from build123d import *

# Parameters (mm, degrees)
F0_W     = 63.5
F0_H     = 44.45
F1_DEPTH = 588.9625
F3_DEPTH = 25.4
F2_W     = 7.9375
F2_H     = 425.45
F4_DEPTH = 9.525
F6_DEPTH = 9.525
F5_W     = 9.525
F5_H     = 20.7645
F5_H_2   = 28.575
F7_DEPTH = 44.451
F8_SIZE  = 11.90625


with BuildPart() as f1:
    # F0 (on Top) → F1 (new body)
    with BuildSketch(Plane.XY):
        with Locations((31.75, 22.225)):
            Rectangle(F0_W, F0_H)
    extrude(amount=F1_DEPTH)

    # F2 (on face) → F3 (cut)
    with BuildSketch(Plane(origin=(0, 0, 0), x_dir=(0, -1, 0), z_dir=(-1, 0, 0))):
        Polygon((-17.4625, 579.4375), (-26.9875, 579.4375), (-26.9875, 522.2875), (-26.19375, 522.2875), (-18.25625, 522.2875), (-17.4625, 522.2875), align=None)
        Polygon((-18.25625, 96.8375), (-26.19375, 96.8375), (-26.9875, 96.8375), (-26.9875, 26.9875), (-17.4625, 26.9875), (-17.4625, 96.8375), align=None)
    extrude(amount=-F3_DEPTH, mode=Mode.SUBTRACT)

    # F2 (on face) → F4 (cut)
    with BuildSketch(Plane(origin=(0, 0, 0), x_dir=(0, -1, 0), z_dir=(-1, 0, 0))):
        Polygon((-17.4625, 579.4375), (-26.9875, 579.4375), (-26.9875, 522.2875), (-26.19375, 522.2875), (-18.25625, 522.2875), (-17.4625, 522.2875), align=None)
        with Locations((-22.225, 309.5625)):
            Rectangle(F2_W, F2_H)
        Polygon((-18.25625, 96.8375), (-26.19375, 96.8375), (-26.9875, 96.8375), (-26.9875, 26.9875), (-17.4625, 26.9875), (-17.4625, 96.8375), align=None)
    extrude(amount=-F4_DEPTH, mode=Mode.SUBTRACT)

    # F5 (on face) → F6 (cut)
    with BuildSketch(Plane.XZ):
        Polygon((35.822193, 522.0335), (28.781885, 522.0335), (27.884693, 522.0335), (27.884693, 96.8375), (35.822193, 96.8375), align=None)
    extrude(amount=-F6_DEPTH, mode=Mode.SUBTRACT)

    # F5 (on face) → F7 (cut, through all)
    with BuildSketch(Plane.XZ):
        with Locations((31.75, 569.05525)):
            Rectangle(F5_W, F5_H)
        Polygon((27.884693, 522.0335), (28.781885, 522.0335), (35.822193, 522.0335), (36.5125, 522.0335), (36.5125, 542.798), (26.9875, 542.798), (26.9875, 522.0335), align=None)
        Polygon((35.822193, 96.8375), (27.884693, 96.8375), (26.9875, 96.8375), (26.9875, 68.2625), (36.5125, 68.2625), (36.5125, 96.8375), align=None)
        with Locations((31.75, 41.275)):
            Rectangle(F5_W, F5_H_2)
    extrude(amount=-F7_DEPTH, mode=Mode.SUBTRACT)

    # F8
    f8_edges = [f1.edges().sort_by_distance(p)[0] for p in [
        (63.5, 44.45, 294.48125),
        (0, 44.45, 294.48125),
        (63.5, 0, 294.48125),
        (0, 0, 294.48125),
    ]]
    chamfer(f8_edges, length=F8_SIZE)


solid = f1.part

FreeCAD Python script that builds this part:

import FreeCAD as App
import Part
import Sketcher
from FreeCAD import Vector
Q = App.Units.Quantity


def edges_at(feature, points):
    """Names of the edges that pass closest to the given points."""
    edges = feature.Shape.Edges
    near = lambda p: min(range(len(edges)), key=lambda i: edges[i].distToShape(Part.Vertex(*p))[0])
    return sorted({f"Edge{near(p) + 1}" for p in points})


def add_polygon(sketch, points):
    """Adds a closed chain of lines whose ends are joined by coincident constraints."""
    first, n = sketch.GeometryCount, len(points)
    for a, b in zip(points, points[1:] + points[:1]):
        sketch.addGeometry(Part.LineSegment(App.Vector(*a, 0), App.Vector(*b, 0)), False)
    for i in range(n):
        sketch.addConstraint(Sketcher.Constraint("Coincident", first + i, 2, first + (i + 1) % n, 1))

doc = App.newDocument("Part")
params = doc.addObject("Spreadsheet::Sheet", "Params")
for row, (alias, value) in enumerate([
    ("sketch1_width", "2.5 in"),
    ("sketch1_height", "1.75 in"),
    ("pad1_length", "23.1875 in"),
    ("sketch2_height", "2.25 in"),
    ("sketch2_height2", "2.75 in"),
    ("sketch2_width", "0.375 in"),
    ("pocket1_length", "1 in"),
    ("sketch3_height", "2.25 in"),
    ("sketch3_height2", "2.75 in"),
    ("sketch3_width", "0.375 in"),
    ("sketch3_width2", "0.03125 in"),
    ("pocket2_length", "0.375 in"),
    ("sketch4_height", "16.74 in"),
    ("sketch4_width", "0.3125 in"),
    ("pocket3_length", "0.375 in"),
    ("sketch5_width", "0.375 in"),
    ("sketch5_height", "1.125 in"),
    ("chamfer_size", "0.46875 in"),
], start=1):
    params.set(f"A{row}", alias)
    params.set(f"B{row}", "=" + value)
    params.setAlias(f"B{row}", alias)

body = doc.addObject("PartDesign::Body", "Body")

sketch1 = doc.addObject("Sketcher::SketchObject", "Sketch")
body.addObject(sketch1)
sketch1.AttachmentSupport = (doc.XY_Plane, [""])
sketch1.MapMode = "FlatFace"
add_polygon(sketch1, [(0, 44), (0, 0), (64, 0), (64, 44)])
sketch1.addConstraint([
    Sketcher.Constraint("Vertical", 0),
    Sketcher.Constraint("Horizontal", 1),
    Sketcher.Constraint("Vertical", 2),
    Sketcher.Constraint("Horizontal", 3),
    Sketcher.Constraint("Coincident", 0, 2, -1, 1),
    Sketcher.Constraint("DistanceX", 1, 1, 1, 2, Q("2.5 in")),
    Sketcher.Constraint("DistanceY", 0, 2, 0, 1, Q("1.75 in")),
])
sketch1.setExpression("Constraints[9]", "Params.sketch1_width")
sketch1.setExpression("Constraints[10]", "Params.sketch1_height")
pad1 = doc.addObject("PartDesign::Pad", "Pad")
body.addObject(pad1)
pad1.Profile = sketch1
pad1.setExpression("Length", "Params.pad1_length")

sketch2 = doc.addObject("Sketcher::SketchObject", "Sketch001")
body.addObject(sketch2)
sketch2.AttachmentSupport = (doc.YZ_Plane, [""])
sketch2.MapMode = "FlatFace"
add_polygon(sketch2, [(17, 579), (27, 579), (27, 522), (17, 522)])
add_polygon(sketch2, [(27, 97), (27, 27), (17, 27), (17, 97)])
sketch2.addConstraint([
    Sketcher.Constraint("Horizontal", 0),
    Sketcher.Constraint("Vertical", 1),
    Sketcher.Constraint("Horizontal", 2),
    Sketcher.Constraint("Vertical", 3),
    Sketcher.Constraint("Vertical", 4),
    Sketcher.Constraint("Horizontal", 5),
    Sketcher.Constraint("Vertical", 6),
    Sketcher.Constraint("Horizontal", 7),
    Sketcher.Constraint("Vertical", 1, 2, 4, 2),
    Sketcher.Constraint("Vertical", 3, 2, 5, 2),
    Sketcher.Constraint("DistanceY", 6, 2, 3, 2, Q("19 in")),
    Sketcher.Constraint("DistanceY", 1, 2, 1, 1, Q("2.25 in")),
    Sketcher.Constraint("DistanceY", 4, 2, 4, 1, Q("2.75 in")),
    Sketcher.Constraint("DistanceX", 0, 1, 0, 2, Q("0.375 in")),
    Sketcher.Constraint("DistanceX", -1, 1, 0, 2, Q("1.0625 in")),
    Sketcher.Constraint("DistanceY", -1, 1, 0, 2, Q("22.8125 in")),
])
sketch2.setExpression("Constraints[19]", "Params.sketch2_height")
sketch2.setExpression("Constraints[20]", "Params.sketch2_height2")
sketch2.setExpression("Constraints[21]", "Params.sketch2_width")
pocket1 = doc.addObject("PartDesign::Pocket", "Pocket")
body.addObject(pocket1)
pocket1.Profile = sketch2
pocket1.setExpression("Length", "Params.pocket1_length")
pocket1.Reversed = True

sketch3 = doc.addObject("Sketcher::SketchObject", "Sketch002")
body.addObject(sketch3)
sketch3.AttachmentSupport = (doc.YZ_Plane, [""])
sketch3.MapMode = "FlatFace"
add_polygon(sketch3, [(17.5, 579.4), (27, 579.4), (27, 522.3), (26.2, 522.3), (26.2, 96.8), (27, 96.8), (27, 27), (17.5, 27), (17.5, 96.8), (18.3, 96.8), (18.3, 522.3), (17.5, 522.3)])
sketch3.addConstraint([
    Sketcher.Constraint("Horizontal", 0),
    Sketcher.Constraint("Vertical", 1),
    Sketcher.Constraint("Horizontal", 2),
    Sketcher.Constraint("Vertical", 3),
    Sketcher.Constraint("Horizontal", 4),
    Sketcher.Constraint("Vertical", 5),
    Sketcher.Constraint("Horizontal", 6),
    Sketcher.Constraint("Vertical", 7),
    Sketcher.Constraint("Horizontal", 8),
    Sketcher.Constraint("Vertical", 9),
    Sketcher.Constraint("Horizontal", 10),
    Sketcher.Constraint("Vertical", 11),
    Sketcher.Constraint("Horizontal", 4, 2, 7, 2),
    Sketcher.Constraint("Horizontal", 2, 2, 9, 2),
    Sketcher.Constraint("Vertical", 1, 2, 4, 2),
    Sketcher.Constraint("Vertical", 7, 2, 10, 2),
    Sketcher.Constraint("Equal", 4, 8),
    Sketcher.Constraint("DistanceY", 3, 2, 0, 2, Q("19 in")),
    Sketcher.Constraint("DistanceY", 1, 2, 1, 1, Q("2.25 in")),
    Sketcher.Constraint("DistanceY", 5, 2, 5, 1, Q("2.75 in")),
    Sketcher.Constraint("DistanceX", 0, 1, 0, 2, Q("0.375 in")),
    Sketcher.Constraint("DistanceX", 2, 2, 2, 1, Q("0.03125 in")),
    Sketcher.Constraint("DistanceX", -1, 1, 0, 2, Q("1.0625 in")),
    Sketcher.Constraint("DistanceY", -1, 1, 0, 2, Q("22.8125 in")),
])
sketch3.setExpression("Constraints[30]", "Params.sketch3_height")
sketch3.setExpression("Constraints[31]", "Params.sketch3_height2")
sketch3.setExpression("Constraints[32]", "Params.sketch3_width")
sketch3.setExpression("Constraints[33]", "Params.sketch3_width2")
pocket2 = doc.addObject("PartDesign::Pocket", "Pocket001")
body.addObject(pocket2)
pocket2.Profile = sketch3
pocket2.setExpression("Length", "Params.pocket2_length")
pocket2.Reversed = True

sketch4 = doc.addObject("Sketcher::SketchObject", "Sketch003")
body.addObject(sketch4)
sketch4.AttachmentSupport = (doc.XZ_Plane, [""])
sketch4.MapMode = "FlatFace"
add_polygon(sketch4, [(36, 522), (28, 522), (28, 97), (36, 97)])
sketch4.addConstraint([
    Sketcher.Constraint("Horizontal", 0),
    Sketcher.Constraint("Vertical", 1),
    Sketcher.Constraint("Horizontal", 2),
    Sketcher.Constraint("Vertical", 3),
    Sketcher.Constraint("DistanceY", 1, 2, 1, 1, Q("16.74 in")),
    Sketcher.Constraint("DistanceX", 0, 2, 0, 1, Q("0.3125 in")),
    Sketcher.Constraint("DistanceY", -1, 1, 1, 2, Q("3.8125 in")),
    Sketcher.Constraint("DistanceX", -1, 1, 0, 2, 27.884693),
])
sketch4.setExpression("Constraints[8]", "Params.sketch4_height")
sketch4.setExpression("Constraints[9]", "Params.sketch4_width")
pocket3 = doc.addObject("PartDesign::Pocket", "Pocket002")
body.addObject(pocket3)
pocket3.Profile = sketch4
pocket3.setExpression("Length", "Params.pocket3_length")

sketch5 = doc.addObject("Sketcher::SketchObject", "Sketch004")
body.addObject(sketch5)
sketch5.AttachmentSupport = (doc.XZ_Plane, [""])
sketch5.MapMode = "FlatFace"
add_polygon(sketch5, [(27, 579), (27, 559), (37, 559), (37, 579)])
add_polygon(sketch5, [(37, 522), (37, 543), (27, 543), (27, 522)])
add_polygon(sketch5, [(27, 97), (27, 68), (37, 68), (37, 97)])
add_polygon(sketch5, [(27, 56), (27, 27), (37, 27), (37, 56)])
sketch5.addConstraint([
    Sketcher.Constraint("Vertical", 0),
    Sketcher.Constraint("Horizontal", 1),
    Sketcher.Constraint("Vertical", 2),
    Sketcher.Constraint("Horizontal", 3),
    Sketcher.Constraint("Vertical", 4),
    Sketcher.Constraint("Horizontal", 5),
    Sketcher.Constraint("Vertical", 6),
    Sketcher.Constraint("Horizontal", 7),
    Sketcher.Constraint("Vertical", 8),
    Sketcher.Constraint("Horizontal", 9),
    Sketcher.Constraint("Vertical", 10),
    Sketcher.Constraint("Horizontal", 11),
    Sketcher.Constraint("Vertical", 12),
    Sketcher.Constraint("Horizontal", 13),
    Sketcher.Constraint("Vertical", 14),
    Sketcher.Constraint("Horizontal", 15),
    Sketcher.Constraint("Vertical", 2, 2, 4, 2),
    Sketcher.Constraint("Vertical", 3, 2, 5, 2),
    Sketcher.Constraint("Vertical", 6, 2, 8, 2),
    Sketcher.Constraint("Vertical", 7, 2, 9, 2),
    Sketcher.Constraint("Vertical", 11, 2, 12, 2),
    Sketcher.Constraint("Vertical", 10, 2, 13, 2),
    Sketcher.Constraint("Equal", 2, 4),
    Sketcher.Constraint("Equal", 10, 12),
    Sketcher.Constraint("DistanceY", 14, 2, 9, 2, Q("0.5 in")),
    Sketcher.Constraint("DistanceX", 1, 1, 1, 2, Q("0.375 in")),
    Sketcher.Constraint("DistanceY", 8, 2, 8, 1, Q("1.125 in")),
    Sketcher.Constraint("DistanceY", -1, 1, 4, 2, Q("21.37 in")),
    Sketcher.Constraint("DistanceY", 6, 2, 3, 2, Q("2.26 in")),
    Sketcher.Constraint("DistanceY", 10, 2, 7, 2, Q("16.74 in")),
    Sketcher.Constraint("DistanceY", 0, 2, 0, 1, Q("0.8175 in")),
    Sketcher.Constraint("DistanceX", -1, 1, 0, 2, Q("1.0625 in")),
])
sketch5.setExpression("Constraints[41]", "Params.sketch5_width")
sketch5.setExpression("Constraints[42]", "Params.sketch5_height")
pocket4 = doc.addObject("PartDesign::Pocket", "Pocket003")
body.addObject(pocket4)
pocket4.Profile = sketch5
pocket4.Type = "ThroughAll"
doc.recompute()

chamfer = doc.addObject("PartDesign::Chamfer", "Chamfer")
body.addObject(chamfer)
chamfer.Base = (pocket4, edges_at(pocket4, [
    (63.5, 44.45, 294.481),
    (0, 44.45, 294.481),
    (63.5, 0, 294.481),
    (0, 0, 294.481),
]))
chamfer.setExpression("Size", "Params.chamfer_size")

doc.recompute()
